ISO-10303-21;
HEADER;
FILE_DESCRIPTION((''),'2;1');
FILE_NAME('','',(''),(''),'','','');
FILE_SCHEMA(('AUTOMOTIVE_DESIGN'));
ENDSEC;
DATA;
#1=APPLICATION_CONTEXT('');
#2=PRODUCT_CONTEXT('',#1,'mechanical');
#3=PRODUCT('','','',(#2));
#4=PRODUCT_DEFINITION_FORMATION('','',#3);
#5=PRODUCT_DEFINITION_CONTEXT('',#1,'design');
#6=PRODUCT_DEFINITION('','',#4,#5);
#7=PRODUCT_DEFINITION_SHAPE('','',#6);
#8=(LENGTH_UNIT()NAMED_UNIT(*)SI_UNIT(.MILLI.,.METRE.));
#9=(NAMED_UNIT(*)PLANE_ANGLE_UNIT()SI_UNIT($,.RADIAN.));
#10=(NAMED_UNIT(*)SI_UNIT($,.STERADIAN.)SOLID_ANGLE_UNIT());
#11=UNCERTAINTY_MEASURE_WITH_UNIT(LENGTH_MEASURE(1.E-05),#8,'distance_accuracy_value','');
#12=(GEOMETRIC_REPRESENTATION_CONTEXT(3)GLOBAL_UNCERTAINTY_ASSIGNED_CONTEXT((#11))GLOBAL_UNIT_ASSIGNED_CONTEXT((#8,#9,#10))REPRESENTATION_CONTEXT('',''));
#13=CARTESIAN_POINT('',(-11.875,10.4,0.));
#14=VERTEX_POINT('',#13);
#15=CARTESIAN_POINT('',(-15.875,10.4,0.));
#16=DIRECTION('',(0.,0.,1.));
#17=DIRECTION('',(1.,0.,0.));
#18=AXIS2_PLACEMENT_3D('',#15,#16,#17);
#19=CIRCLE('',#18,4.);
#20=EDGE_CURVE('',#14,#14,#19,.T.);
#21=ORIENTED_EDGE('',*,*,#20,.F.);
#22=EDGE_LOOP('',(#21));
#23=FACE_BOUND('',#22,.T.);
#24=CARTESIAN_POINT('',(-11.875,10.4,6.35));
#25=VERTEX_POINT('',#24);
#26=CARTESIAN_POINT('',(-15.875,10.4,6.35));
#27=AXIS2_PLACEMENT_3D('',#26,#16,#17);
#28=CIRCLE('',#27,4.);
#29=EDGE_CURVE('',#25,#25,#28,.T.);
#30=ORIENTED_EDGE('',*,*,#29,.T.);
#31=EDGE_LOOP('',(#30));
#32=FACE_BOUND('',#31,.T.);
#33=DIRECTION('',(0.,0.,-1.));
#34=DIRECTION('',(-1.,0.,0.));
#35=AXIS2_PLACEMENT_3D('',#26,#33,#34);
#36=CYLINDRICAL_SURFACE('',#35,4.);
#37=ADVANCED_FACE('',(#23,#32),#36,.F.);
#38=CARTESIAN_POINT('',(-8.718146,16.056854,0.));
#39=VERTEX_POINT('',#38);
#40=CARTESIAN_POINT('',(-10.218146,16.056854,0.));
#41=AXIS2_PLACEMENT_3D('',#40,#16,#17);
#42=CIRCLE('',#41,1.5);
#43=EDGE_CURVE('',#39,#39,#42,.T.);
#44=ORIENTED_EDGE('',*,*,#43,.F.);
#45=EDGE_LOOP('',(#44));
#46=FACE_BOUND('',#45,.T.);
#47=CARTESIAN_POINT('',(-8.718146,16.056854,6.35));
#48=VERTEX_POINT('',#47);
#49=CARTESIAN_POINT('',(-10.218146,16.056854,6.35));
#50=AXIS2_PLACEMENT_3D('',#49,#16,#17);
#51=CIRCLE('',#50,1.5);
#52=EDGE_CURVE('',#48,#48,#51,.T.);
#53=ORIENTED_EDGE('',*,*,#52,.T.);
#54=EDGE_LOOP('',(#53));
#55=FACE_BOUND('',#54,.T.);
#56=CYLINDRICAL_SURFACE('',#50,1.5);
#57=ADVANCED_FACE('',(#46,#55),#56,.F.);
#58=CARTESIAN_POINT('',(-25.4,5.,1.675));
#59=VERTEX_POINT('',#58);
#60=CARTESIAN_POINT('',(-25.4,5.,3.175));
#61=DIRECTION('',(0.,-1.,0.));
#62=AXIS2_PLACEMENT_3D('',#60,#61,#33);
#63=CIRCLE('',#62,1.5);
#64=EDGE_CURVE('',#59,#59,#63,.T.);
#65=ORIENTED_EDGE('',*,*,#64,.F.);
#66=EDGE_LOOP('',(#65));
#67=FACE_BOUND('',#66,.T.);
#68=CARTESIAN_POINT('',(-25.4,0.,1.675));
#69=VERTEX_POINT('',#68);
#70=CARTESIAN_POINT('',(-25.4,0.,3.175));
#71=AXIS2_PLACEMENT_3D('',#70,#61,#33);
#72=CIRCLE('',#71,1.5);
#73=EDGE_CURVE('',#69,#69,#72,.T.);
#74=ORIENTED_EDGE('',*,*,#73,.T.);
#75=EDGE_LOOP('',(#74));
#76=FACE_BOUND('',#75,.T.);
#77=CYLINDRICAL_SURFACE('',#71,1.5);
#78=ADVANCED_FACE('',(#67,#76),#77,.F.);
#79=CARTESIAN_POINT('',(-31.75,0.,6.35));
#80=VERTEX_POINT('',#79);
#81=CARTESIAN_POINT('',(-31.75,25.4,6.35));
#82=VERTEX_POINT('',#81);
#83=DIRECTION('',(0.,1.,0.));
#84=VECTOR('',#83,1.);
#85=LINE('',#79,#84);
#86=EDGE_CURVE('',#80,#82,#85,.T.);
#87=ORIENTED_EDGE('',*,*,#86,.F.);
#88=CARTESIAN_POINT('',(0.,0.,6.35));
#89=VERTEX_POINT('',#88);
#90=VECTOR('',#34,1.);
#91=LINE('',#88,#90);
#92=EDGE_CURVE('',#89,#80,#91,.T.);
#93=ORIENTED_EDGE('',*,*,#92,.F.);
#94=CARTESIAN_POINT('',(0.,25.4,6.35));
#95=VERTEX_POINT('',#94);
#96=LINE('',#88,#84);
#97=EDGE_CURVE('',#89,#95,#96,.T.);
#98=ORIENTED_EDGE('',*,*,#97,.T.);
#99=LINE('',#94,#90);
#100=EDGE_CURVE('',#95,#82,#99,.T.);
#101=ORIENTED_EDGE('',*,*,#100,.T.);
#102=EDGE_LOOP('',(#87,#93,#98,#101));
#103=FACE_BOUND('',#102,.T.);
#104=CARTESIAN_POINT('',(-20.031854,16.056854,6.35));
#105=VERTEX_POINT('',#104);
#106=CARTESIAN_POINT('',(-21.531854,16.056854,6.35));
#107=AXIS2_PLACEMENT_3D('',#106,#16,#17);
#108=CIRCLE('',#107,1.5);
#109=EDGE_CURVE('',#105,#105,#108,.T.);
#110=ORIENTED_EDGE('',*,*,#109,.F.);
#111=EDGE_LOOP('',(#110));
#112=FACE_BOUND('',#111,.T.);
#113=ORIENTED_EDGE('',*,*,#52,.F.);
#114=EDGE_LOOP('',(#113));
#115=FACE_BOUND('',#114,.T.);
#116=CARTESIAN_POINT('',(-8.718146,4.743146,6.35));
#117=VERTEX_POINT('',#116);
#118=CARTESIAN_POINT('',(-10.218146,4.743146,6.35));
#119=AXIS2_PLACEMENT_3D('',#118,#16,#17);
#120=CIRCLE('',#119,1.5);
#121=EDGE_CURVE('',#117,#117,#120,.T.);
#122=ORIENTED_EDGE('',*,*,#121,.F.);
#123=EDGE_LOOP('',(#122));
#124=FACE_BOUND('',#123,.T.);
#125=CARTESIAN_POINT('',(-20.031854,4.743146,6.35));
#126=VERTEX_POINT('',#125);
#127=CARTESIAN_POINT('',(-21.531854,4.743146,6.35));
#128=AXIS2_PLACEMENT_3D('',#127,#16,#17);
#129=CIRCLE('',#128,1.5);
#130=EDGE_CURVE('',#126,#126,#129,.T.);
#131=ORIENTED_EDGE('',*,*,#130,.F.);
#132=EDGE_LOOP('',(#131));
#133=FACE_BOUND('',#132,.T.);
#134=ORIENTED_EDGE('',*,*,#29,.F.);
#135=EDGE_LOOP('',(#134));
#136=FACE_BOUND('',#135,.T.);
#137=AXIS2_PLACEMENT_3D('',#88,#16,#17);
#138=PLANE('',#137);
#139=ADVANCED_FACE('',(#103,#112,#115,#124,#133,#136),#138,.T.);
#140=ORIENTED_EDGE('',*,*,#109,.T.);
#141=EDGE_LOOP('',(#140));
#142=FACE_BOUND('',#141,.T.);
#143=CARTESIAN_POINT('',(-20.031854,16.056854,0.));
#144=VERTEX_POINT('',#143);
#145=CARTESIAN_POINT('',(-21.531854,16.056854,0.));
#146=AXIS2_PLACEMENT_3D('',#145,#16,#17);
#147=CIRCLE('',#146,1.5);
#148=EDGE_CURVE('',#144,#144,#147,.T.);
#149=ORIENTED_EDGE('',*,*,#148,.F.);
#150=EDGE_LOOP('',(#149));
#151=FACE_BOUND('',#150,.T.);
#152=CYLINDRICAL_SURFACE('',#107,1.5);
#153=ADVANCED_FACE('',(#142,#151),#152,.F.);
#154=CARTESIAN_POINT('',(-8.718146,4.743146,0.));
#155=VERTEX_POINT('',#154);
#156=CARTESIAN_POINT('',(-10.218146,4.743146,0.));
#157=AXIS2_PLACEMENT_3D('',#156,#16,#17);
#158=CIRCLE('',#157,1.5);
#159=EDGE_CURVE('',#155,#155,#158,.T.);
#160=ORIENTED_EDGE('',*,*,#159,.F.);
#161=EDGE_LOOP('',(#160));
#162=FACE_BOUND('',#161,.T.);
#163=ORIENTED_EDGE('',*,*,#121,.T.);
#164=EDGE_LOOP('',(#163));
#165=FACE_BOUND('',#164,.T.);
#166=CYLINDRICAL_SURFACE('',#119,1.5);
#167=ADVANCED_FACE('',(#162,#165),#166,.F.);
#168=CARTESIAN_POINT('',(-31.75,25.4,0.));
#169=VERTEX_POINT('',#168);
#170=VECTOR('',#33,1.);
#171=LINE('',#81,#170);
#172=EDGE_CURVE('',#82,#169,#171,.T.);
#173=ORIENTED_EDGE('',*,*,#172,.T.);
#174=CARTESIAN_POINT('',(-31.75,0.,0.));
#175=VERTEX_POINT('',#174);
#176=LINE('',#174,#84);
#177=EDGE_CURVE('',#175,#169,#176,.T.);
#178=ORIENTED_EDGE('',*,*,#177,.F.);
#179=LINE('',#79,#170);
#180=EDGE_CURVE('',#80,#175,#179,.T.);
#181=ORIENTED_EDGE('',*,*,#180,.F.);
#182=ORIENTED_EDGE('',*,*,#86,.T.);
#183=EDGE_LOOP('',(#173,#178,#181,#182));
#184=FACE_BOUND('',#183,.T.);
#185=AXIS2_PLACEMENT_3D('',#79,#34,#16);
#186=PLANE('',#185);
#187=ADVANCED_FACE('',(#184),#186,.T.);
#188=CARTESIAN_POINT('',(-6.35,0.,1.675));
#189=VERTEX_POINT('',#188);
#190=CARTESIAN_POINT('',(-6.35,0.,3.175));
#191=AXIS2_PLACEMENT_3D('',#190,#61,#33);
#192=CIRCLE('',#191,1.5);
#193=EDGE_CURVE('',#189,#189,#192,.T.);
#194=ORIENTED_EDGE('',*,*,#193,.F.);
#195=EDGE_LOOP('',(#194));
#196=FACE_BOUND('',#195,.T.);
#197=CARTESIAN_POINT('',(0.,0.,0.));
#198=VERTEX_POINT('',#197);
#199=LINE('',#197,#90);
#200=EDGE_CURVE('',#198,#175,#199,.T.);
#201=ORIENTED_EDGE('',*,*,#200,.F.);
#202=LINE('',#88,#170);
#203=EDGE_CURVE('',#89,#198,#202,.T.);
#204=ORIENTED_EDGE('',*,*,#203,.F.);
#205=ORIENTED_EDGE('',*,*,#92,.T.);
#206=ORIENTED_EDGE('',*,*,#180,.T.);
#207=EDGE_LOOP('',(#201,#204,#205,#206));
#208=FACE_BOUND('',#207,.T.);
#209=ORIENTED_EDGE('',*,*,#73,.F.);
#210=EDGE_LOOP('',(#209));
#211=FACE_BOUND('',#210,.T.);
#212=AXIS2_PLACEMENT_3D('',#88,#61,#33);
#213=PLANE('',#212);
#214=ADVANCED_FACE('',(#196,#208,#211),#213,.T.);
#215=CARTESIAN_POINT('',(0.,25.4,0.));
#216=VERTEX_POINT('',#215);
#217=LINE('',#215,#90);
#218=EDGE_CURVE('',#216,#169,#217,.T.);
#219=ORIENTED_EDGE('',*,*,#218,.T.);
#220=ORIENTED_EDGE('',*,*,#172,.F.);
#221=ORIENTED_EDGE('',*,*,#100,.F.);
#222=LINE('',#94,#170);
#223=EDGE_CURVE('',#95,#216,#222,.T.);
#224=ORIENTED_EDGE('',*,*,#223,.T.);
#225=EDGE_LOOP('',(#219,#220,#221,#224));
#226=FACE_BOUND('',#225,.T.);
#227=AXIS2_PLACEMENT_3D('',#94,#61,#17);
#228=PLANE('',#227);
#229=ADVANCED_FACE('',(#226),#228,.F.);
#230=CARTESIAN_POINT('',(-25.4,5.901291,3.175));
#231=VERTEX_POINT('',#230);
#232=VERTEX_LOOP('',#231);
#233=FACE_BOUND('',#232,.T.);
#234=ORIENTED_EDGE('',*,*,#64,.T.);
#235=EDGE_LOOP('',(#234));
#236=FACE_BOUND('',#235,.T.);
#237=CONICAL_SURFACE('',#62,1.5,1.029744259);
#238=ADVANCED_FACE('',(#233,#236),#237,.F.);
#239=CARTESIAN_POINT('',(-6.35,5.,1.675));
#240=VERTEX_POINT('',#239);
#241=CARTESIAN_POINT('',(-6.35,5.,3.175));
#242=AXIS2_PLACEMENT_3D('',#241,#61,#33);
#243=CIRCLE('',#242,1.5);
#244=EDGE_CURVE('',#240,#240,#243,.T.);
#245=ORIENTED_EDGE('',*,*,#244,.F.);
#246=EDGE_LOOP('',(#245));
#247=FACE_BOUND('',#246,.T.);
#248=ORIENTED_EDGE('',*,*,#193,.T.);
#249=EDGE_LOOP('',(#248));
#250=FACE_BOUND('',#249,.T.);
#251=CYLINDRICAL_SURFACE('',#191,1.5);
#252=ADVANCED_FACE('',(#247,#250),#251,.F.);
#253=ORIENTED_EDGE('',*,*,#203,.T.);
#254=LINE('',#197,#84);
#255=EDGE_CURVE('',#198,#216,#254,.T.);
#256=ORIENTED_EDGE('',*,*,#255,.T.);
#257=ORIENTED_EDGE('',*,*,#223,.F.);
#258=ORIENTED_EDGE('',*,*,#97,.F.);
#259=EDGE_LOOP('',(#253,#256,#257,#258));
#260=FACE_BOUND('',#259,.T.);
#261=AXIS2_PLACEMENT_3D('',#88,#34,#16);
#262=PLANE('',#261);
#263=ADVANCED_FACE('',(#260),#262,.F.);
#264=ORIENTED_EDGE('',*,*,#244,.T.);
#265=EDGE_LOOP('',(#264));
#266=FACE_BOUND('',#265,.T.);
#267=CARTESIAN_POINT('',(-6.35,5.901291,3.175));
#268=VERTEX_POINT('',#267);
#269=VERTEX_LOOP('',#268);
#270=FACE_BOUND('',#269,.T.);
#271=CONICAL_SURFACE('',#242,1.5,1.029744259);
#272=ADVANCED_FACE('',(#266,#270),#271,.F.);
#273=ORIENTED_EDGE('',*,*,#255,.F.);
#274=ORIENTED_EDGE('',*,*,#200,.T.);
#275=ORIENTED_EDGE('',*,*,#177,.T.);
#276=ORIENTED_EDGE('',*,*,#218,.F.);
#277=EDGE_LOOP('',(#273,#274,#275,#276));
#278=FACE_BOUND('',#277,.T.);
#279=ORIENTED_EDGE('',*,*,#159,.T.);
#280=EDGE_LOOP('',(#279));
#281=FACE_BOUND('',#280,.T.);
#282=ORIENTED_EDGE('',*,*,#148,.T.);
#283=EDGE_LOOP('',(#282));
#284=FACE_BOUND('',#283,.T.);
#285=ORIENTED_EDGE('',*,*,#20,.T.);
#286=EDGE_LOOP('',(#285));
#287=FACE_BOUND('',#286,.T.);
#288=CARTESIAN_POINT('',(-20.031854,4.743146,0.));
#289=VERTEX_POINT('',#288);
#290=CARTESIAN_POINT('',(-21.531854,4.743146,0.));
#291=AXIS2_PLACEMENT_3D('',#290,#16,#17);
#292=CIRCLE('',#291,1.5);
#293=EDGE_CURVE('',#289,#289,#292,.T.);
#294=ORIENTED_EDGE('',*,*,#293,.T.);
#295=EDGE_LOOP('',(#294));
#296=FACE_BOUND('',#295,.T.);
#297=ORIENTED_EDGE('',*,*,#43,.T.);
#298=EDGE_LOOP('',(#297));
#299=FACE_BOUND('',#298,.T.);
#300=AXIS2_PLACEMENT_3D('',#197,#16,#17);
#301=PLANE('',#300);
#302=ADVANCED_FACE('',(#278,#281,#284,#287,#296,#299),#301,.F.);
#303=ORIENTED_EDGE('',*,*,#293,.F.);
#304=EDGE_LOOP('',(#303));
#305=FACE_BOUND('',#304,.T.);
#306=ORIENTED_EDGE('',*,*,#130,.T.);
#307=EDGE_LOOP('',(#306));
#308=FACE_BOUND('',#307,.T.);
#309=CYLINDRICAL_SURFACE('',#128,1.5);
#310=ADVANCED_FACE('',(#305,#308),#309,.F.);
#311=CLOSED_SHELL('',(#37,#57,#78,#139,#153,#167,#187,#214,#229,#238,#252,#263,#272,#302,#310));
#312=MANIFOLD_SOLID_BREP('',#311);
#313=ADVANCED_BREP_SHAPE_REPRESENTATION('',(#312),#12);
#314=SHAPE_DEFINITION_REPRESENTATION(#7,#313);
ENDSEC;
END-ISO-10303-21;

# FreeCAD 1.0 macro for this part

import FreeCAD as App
import Part
import Sketcher


def add_polygon(sketch, points):
    """Adds a closed chain of lines whose ends are joined by coincident constraints."""
    first, n = sketch.GeometryCount, len(points)
    for a, b in zip(points, points[1:] + points[:1]):
        sketch.addGeometry(Part.LineSegment(App.Vector(*a, 0), App.Vector(*b, 0)), False)
    for i in range(n):
        sketch.addConstraint(Sketcher.Constraint("Coincident", first + i, 2, first + (i + 1) % n, 1))

doc = App.newDocument("Part")
body = doc.addObject("PartDesign::Body", "Body")

sketch1 = body.newObject("Sketcher::SketchObject", "Sketch")
sketch1.AttachmentSupport = (doc.getObject("XY_Plane"), [""])
sketch1.MapMode = "FlatFace"
add_polygon(sketch1, [(-31.8, 25.4), (-31.8, 0), (0, 0), (0, 25.4)])
sketch1.addGeometry(Part.Circle(App.Vector(-15.9, 10.4, 0), App.Vector(0, 0, 1), 4), False)
sketch1.addConstraint([
    Sketcher.Constraint("Vertical", 0),
    Sketcher.Constraint("Horizontal", 1),
    Sketcher.Constraint("Vertical", 2),
    Sketcher.Constraint("Horizontal", 3),
    Sketcher.Constraint("Coincident", 1, 2, -1, 1),
    Sketcher.Constraint("Diameter", 4, 8.0),
    Sketcher.Constraint("DistanceY", 0, 2, 0, 1, 25.4),
    Sketcher.Constraint("DistanceY", 4, 3, 2, 2, 15.0),
    Sketcher.Constraint("DistanceX", 1, 1, 1, 2, 31.75),
    Sketcher.Constraint("DistanceX", 4, 3, -1, 1, 15.875),
])
pad1 = body.newObject("PartDesign::Pad", "Pad")
pad1.Profile = sketch1
pad1.Length = 6.35

sketch2 = body.newObject("Sketcher::SketchObject", "Sketch001")
sketch2.AttachmentSupport = (doc.getObject("XY_Plane"), [""])
sketch2.MapMode = "FlatFace"
sketch2.AttachmentOffset = App.Placement(App.Vector(0, 0, 6.35), App.Rotation())
sketch2.addGeometry(Part.Circle(App.Vector(-21.5, 16.1, 0), App.Vector(0, 0, 1), 1.5), False)
sketch2.addConstraint([
    Sketcher.Constraint("Diameter", 0, 3.0),
    Sketcher.Constraint("DistanceX", 0, 3, -1, 1, 21.531854),
    Sketcher.Constraint("DistanceY", -1, 1, 0, 3, 16.056854),
])
doc.recompute()
hole = body.newObject("PartDesign::Hole", "Hole")
hole.Profile = sketch2
hole.ThreadType = "None"
hole.Diameter = 3
hole.DepthType = "ThroughAll"
doc.recompute()

datumline = body.newObject("PartDesign::Line", "DatumLine")
datumline.Placement = App.Placement(App.Vector(-15.875, 10.4, 0), App.Rotation(App.Vector(0, 0, 1), App.Vector(0, 0, 1)))
polarpattern = body.newObject("PartDesign::PolarPattern", "PolarPattern")
polarpattern.Originals = [hole]
polarpattern.Axis = (datumline, [""])
polarpattern.Angle = 360
polarpattern.Occurrences = 4
body.Tip = polarpattern

sketch3 = body.newObject("Sketcher::SketchObject", "Sketch002")
sketch3.AttachmentSupport = (doc.getObject("XZ_Plane"), [""])
sketch3.MapMode = "FlatFace"
sketch3.addGeometry([
    Part.Circle(App.Vector(-6.3, 3.2, 0), App.Vector(0, 0, 1), 1.5),
    Part.Circle(App.Vector(-25.4, 3.2, 0), App.Vector(0, 0, 1), 1.5),
], False)
sketch3.addConstraint([
    Sketcher.Constraint("Equal", 0, 1),
    Sketcher.Constraint("Horizontal", 0, 3, 1, 3),
    Sketcher.Constraint("Diameter", 0, 3.0),
    Sketcher.Constraint("DistanceX", 1, 3, -1, 1, 25.4),
    Sketcher.Constraint("DistanceX", 0, 3, -1, 1, 6.35),
    Sketcher.Constraint("DistanceY", -1, 1, 0, 3, 3.175),
])
doc.recompute()
hole2 = body.newObject("PartDesign::Hole", "Hole001")
hole2.Profile = sketch3
hole2.ThreadType = "None"
hole2.Diameter = 3
hole2.DepthType = "Dimension"
hole2.Depth = 5
hole2.DrillPoint = "Angled"
hole2.DrillPointAngle = 118

doc.recompute()
